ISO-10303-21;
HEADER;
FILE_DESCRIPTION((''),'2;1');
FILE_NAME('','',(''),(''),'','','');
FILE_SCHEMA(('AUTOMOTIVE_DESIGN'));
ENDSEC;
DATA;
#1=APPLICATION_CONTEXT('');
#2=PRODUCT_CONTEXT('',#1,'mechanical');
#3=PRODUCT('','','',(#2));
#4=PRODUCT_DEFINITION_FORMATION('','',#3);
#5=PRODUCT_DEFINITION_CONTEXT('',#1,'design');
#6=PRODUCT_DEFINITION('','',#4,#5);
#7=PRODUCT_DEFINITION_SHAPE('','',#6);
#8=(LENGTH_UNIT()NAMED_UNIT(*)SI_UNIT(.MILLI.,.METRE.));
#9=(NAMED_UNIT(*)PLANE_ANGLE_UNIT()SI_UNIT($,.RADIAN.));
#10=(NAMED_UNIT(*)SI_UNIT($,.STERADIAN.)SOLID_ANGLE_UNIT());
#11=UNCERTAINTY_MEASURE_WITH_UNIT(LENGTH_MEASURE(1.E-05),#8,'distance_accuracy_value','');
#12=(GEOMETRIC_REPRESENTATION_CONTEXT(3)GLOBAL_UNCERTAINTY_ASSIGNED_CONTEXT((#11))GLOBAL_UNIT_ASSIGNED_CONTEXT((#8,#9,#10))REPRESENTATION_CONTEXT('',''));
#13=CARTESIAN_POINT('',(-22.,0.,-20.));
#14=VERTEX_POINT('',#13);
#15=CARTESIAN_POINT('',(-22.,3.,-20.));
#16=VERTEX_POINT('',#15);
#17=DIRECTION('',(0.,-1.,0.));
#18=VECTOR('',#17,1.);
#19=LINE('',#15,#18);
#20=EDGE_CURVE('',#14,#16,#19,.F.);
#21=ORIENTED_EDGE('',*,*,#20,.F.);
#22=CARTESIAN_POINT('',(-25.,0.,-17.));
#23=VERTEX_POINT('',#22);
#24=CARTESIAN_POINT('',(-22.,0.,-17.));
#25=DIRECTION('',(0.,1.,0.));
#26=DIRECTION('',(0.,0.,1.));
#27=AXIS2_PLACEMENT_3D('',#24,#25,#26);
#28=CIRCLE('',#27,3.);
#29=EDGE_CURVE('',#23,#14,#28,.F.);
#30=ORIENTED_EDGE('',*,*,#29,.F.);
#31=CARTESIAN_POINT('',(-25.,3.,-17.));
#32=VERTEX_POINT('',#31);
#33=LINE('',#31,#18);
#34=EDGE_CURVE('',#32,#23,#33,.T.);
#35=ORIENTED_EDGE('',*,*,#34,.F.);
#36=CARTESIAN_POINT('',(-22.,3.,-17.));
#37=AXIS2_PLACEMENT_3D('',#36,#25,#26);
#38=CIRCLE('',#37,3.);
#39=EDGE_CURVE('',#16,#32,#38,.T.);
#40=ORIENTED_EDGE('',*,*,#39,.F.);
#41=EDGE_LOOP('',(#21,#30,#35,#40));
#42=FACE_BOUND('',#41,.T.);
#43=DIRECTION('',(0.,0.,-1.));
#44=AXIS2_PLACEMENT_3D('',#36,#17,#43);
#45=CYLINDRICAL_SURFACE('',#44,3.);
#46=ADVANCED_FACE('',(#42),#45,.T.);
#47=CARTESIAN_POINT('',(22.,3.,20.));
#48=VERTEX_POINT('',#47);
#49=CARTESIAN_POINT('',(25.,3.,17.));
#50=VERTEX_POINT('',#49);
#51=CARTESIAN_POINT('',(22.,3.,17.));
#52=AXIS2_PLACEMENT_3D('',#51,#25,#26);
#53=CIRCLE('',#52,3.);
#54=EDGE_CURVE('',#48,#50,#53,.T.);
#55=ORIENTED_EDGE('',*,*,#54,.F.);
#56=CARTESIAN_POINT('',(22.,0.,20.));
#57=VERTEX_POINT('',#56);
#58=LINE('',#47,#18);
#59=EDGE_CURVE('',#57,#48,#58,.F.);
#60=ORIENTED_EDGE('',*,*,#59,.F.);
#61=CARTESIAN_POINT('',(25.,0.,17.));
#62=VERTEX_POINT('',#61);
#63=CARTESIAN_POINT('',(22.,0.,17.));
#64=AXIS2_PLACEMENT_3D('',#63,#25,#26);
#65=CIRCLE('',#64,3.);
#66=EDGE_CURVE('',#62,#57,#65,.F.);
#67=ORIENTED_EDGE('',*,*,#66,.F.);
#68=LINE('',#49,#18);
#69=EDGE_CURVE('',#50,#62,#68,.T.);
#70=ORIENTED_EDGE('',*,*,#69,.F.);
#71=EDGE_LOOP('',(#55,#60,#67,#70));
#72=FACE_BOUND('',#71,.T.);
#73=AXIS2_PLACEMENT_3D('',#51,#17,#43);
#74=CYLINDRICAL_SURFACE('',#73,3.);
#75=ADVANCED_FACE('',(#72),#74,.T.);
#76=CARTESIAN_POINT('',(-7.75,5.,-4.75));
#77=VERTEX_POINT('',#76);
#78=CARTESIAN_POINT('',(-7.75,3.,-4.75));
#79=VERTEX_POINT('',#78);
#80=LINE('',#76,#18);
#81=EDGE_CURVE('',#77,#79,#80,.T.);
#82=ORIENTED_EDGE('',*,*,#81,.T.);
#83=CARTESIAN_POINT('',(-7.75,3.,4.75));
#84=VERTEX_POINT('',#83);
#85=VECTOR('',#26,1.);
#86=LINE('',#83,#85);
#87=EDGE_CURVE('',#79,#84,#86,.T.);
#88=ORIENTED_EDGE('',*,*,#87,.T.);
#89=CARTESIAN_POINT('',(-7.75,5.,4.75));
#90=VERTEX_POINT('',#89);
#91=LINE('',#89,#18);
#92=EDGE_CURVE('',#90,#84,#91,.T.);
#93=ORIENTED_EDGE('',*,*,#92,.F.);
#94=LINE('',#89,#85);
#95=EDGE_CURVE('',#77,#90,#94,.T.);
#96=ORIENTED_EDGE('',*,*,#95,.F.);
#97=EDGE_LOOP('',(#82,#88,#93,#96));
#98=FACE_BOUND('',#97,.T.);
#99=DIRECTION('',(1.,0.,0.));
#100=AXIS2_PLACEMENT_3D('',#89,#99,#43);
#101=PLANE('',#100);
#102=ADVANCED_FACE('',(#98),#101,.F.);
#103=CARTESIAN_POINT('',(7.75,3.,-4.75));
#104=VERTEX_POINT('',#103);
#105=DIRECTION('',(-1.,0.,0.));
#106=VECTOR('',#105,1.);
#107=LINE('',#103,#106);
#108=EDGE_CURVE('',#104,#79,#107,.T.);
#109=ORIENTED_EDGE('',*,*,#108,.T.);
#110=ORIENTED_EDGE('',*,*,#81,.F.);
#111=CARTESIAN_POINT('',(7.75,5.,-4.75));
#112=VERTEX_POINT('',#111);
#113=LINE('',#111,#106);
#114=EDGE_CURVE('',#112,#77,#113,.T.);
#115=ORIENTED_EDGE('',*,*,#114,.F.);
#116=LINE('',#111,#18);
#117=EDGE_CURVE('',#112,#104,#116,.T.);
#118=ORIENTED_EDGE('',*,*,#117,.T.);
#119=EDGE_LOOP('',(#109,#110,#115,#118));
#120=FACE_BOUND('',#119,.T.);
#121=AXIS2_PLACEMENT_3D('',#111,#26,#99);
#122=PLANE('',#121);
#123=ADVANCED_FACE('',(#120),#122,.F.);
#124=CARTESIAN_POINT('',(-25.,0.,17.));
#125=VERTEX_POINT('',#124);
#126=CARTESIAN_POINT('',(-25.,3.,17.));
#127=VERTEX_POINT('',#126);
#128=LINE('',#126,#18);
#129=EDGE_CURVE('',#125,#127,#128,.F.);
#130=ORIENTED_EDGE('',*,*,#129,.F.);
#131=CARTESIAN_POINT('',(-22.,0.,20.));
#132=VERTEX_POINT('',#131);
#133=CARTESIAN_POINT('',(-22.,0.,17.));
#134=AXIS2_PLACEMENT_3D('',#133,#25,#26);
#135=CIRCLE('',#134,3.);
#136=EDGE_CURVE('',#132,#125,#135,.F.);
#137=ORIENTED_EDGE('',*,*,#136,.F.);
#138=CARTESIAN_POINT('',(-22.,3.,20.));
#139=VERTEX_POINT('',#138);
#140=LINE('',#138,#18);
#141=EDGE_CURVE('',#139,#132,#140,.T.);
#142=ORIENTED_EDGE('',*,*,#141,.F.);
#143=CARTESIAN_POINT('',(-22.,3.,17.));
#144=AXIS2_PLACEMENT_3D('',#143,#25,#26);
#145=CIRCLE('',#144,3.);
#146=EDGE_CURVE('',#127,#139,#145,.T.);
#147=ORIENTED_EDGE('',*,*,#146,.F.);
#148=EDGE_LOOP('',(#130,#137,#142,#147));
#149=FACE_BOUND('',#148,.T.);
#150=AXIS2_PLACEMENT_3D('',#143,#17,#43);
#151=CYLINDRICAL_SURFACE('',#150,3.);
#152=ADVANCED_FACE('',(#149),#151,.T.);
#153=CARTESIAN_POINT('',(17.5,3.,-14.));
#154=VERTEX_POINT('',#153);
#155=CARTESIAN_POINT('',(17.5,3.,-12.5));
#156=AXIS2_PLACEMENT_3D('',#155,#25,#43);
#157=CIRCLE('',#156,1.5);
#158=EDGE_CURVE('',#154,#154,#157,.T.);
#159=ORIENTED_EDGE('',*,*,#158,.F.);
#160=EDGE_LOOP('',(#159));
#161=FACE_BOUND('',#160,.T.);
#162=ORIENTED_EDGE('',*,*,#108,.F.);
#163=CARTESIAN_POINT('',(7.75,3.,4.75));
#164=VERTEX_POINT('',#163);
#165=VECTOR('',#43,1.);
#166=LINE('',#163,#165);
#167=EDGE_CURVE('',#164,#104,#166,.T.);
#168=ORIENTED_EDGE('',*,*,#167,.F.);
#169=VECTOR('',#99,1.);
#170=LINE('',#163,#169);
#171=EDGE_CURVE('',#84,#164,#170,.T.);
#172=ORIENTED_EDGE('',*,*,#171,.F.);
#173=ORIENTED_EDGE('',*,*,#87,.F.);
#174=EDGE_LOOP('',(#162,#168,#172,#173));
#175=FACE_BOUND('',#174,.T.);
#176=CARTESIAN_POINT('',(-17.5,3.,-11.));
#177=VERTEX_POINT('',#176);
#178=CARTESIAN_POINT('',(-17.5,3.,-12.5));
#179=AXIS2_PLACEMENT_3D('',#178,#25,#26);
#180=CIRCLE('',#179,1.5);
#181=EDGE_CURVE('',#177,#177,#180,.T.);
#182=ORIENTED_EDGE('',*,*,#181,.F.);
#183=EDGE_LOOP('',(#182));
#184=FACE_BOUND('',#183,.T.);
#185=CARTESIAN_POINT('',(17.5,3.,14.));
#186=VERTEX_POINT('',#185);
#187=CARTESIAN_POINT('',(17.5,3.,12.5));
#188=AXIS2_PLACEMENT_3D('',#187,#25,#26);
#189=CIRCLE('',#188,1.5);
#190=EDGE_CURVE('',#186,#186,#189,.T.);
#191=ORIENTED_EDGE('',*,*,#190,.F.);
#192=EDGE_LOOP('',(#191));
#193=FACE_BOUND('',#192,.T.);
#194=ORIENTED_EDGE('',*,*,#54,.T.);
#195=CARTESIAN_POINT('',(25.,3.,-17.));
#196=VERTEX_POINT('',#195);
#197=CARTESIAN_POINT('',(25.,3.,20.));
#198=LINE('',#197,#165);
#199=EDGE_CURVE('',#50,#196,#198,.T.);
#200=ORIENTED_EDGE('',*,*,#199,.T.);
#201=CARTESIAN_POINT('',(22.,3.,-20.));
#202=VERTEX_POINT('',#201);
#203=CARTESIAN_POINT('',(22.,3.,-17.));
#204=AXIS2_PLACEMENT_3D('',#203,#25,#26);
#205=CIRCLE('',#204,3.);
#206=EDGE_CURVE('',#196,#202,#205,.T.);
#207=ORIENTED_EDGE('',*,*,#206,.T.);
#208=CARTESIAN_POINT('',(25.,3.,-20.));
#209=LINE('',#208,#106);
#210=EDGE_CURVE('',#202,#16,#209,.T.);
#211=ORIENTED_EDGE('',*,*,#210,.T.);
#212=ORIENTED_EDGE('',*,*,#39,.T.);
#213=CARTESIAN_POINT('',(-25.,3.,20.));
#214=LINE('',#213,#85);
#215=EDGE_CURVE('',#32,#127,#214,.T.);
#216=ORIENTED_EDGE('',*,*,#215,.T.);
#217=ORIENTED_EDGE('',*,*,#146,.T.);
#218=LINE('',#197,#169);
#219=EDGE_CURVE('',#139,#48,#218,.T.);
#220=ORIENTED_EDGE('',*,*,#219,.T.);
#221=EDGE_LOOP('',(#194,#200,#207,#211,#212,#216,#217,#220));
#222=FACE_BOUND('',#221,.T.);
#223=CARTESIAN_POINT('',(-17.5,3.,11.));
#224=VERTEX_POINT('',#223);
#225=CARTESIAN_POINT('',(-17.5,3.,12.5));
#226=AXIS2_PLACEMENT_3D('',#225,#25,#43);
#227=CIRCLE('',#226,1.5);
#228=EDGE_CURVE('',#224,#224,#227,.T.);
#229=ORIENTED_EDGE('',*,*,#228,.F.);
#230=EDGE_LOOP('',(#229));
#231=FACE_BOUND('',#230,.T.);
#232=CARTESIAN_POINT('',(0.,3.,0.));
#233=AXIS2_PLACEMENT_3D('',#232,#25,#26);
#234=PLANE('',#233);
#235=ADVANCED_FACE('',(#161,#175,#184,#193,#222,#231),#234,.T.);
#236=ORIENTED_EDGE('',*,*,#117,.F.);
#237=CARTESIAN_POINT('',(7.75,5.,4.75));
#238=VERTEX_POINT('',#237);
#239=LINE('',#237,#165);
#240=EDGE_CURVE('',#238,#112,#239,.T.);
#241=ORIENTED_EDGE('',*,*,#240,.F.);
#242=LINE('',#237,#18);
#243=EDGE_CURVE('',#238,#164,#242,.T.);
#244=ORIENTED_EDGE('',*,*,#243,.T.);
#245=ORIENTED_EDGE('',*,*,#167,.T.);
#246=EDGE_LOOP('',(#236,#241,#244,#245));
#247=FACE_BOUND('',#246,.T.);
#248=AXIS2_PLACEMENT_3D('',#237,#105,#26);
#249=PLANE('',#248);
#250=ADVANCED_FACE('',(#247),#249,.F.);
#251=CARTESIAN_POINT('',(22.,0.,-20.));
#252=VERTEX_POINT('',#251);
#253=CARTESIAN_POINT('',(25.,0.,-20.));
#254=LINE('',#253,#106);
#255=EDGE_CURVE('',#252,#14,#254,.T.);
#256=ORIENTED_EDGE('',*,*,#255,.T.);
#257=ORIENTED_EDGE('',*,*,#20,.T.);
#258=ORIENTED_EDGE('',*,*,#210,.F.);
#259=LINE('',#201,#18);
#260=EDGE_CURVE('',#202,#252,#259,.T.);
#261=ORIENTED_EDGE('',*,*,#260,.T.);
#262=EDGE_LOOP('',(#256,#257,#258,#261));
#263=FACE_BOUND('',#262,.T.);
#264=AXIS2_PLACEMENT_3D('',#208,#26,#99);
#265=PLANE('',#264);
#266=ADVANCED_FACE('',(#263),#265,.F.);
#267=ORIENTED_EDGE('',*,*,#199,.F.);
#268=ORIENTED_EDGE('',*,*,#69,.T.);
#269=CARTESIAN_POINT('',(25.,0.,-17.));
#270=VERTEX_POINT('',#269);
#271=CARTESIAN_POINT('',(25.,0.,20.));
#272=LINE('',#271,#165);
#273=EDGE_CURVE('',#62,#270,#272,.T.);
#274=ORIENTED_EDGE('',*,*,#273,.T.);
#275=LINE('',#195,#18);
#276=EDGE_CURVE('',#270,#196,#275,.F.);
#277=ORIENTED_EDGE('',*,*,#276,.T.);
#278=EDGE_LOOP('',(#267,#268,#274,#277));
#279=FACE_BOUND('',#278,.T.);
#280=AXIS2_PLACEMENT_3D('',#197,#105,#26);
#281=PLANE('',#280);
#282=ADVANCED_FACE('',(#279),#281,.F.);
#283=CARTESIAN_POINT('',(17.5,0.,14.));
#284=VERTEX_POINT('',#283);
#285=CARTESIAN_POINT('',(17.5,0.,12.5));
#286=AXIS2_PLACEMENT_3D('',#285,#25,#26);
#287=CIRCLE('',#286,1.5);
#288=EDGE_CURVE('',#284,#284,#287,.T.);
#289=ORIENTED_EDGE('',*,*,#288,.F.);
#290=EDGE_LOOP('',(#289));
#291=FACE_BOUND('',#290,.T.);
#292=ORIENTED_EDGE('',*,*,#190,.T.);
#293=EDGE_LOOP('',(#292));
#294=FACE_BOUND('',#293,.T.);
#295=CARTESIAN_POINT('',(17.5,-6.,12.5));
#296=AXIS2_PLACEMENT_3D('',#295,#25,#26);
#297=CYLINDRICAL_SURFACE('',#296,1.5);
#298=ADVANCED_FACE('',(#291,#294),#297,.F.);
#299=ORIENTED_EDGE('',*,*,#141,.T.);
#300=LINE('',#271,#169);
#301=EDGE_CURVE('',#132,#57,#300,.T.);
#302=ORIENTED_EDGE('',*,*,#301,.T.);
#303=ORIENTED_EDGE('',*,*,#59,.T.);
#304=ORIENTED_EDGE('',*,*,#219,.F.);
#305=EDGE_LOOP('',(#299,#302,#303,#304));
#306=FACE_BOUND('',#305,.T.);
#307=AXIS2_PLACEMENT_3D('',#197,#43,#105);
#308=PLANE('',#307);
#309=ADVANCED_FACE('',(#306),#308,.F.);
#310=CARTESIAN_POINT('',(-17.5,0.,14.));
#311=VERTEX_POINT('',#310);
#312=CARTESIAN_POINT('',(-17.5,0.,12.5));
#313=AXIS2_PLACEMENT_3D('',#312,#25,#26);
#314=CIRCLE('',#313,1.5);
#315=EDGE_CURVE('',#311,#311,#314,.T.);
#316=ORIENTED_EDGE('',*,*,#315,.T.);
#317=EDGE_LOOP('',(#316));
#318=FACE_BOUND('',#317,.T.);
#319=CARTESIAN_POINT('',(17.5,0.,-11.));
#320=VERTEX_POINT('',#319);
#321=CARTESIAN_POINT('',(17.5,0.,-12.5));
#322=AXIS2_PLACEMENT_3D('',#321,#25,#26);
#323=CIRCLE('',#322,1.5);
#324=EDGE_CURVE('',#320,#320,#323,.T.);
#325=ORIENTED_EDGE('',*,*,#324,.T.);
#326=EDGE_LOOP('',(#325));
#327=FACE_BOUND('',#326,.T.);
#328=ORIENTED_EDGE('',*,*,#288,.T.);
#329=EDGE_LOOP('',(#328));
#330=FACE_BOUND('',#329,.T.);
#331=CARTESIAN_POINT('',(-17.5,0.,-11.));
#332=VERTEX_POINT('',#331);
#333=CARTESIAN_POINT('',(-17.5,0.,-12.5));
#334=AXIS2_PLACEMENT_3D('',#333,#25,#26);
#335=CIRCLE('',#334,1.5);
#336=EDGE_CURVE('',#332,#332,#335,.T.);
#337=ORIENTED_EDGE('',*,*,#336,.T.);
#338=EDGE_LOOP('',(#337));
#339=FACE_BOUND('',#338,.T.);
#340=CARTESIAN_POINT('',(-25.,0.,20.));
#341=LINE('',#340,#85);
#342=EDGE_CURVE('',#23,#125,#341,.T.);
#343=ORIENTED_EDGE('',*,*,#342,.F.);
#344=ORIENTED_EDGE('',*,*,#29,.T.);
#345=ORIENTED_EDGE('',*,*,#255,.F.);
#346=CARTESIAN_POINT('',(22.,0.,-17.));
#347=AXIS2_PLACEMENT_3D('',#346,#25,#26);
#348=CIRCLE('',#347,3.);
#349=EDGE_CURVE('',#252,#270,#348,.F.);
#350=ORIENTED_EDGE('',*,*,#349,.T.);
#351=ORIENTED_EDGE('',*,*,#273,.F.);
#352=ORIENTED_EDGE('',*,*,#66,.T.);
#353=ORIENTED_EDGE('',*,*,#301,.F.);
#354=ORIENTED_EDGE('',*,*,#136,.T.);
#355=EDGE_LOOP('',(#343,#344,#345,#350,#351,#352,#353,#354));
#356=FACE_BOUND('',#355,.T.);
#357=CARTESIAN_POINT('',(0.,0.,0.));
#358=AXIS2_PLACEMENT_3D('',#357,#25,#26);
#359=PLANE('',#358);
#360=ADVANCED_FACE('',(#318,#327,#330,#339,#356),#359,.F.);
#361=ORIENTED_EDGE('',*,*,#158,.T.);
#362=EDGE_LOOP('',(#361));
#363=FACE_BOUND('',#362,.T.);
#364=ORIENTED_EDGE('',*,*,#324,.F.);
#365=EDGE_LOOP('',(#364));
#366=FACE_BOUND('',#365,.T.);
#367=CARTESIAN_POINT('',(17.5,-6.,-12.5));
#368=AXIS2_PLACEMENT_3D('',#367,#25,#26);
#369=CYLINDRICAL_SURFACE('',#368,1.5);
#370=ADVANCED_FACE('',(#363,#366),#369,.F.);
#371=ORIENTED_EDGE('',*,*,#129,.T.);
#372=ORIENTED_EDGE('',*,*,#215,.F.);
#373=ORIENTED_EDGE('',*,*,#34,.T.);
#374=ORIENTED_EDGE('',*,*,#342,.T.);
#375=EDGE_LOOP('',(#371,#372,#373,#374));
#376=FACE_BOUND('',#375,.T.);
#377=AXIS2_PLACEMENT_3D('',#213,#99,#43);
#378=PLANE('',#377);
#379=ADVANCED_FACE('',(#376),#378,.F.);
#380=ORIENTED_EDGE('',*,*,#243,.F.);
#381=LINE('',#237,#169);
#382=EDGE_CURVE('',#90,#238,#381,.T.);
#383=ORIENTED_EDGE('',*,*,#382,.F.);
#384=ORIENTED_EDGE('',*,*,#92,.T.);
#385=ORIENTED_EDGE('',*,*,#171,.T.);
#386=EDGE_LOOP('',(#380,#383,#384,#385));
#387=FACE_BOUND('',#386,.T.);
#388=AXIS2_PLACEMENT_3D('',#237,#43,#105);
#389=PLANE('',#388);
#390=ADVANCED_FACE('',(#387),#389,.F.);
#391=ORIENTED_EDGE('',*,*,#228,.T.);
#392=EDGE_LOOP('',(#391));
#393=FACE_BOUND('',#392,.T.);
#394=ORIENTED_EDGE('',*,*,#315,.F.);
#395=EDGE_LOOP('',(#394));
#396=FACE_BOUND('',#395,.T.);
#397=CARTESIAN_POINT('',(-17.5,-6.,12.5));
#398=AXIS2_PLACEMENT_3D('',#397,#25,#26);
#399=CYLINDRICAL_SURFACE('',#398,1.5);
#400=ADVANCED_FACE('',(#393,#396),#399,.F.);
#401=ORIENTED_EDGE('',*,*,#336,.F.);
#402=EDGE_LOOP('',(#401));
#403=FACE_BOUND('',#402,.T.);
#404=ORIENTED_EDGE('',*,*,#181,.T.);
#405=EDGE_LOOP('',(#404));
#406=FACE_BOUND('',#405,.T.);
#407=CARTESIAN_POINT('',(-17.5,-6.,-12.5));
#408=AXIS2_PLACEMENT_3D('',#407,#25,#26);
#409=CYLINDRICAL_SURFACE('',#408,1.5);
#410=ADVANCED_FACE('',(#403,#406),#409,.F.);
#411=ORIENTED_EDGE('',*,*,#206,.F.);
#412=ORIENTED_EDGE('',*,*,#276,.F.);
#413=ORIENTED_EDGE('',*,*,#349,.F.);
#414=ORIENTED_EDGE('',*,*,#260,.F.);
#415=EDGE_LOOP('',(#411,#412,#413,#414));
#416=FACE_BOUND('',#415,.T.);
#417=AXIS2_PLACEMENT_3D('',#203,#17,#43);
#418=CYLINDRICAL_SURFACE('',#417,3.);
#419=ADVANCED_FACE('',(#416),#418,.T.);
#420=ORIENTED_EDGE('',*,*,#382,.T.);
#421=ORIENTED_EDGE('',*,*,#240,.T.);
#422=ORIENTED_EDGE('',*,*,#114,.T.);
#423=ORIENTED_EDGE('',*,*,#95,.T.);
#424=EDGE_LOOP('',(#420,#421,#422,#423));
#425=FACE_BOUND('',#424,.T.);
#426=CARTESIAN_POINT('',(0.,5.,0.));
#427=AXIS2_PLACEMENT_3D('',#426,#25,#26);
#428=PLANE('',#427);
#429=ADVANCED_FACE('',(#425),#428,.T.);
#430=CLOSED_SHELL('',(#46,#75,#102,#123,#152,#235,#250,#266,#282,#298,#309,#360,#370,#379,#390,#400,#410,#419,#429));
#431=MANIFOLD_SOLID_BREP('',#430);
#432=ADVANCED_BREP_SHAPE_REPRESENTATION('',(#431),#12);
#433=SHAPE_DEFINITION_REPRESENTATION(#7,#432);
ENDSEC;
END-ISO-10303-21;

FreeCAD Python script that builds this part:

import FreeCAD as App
import Part
import Sketcher
Q = App.Units.Quantity


def edges_at(feature, points):
    """Names of the edges that pass closest to the given points."""
    edges = feature.Shape.Edges
    near = lambda p: min(range(len(edges)), key=lambda i: edges[i].distToShape(Part.Vertex(*p))[0])
    return sorted({f"Edge{near(p) + 1}" for p in points})


def add_polygon(sketch, points):
    """Adds a closed chain of lines whose ends are joined by coincident constraints."""
    first, n = sketch.GeometryCount, len(points)
    for a, b in zip(points, points[1:] + points[:1]):
        sketch.addGeometry(Part.LineSegment(App.Vector(*a, 0), App.Vector(*b, 0)), False)
    for i in range(n):
        sketch.addConstraint(Sketcher.Constraint("Coincident", first + i, 2, first + (i + 1) % n, 1))

doc = App.newDocument("Part")
body = doc.addObject("PartDesign::Body", "Body")

# Sketch on XZ plane
sketch1 = body.newObject("Sketcher::SketchObject", "Sketch")
sketch1.AttachmentSupport = (doc.getObject("XZ_Plane"), [""])
sketch1.MapMode = "FlatFace"
add_polygon(sketch1, [(-25, -20), (-25, 20), (25, 20), (25, -20)])  # lines 0-3
sketch1.addConstraint([
    Sketcher.Constraint("Vertical", 0),
    Sketcher.Constraint("Horizontal", 1),
    Sketcher.Constraint("Vertical", 2),
    Sketcher.Constraint("Horizontal", 3),
    Sketcher.Constraint("Symmetric", 0, 2, 2, 2, -1, 1),
    Sketcher.Constraint("DistanceX", 1, 1, 1, 2, Q("50 mm")),
    Sketcher.Constraint("DistanceY", 0, 1, 0, 2, Q("40 mm")),
])
pad1 = body.newObject("PartDesign::Pad", "Pad")
pad1.Profile = sketch1
pad1.Length = 3
pad1.Reversed = True
doc.recompute()

fillet = body.newObject("PartDesign::Fillet", "Fillet")
fillet.Base = (pad1, edges_at(pad1, [
    (-25, 1.5, -20),
    (25, 1.5, -20),
    (25, 1.5, 20),
    (-25, 1.5, 20),
]))
fillet.Radius = 3

# Sketch on XZ plane
sketch2 = body.newObject("Sketcher::SketchObject", "Sketch001")
sketch2.AttachmentSupport = (doc.getObject("XZ_Plane"), [""])
sketch2.MapMode = "FlatFace"
sketch2.AttachmentOffset = App.Placement(App.Vector(0, 0, -3), App.Rotation())
sketch2.addGeometry([
    Part.Circle(App.Vector(-17.5, -12.5, 0), App.Vector(0, 0, 1), 1.5),
    Part.Circle(App.Vector(17.5, -12.5, 0), App.Vector(0, 0, 1), 1.5),
    Part.Circle(App.Vector(17.5, 12.5, 0), App.Vector(0, 0, 1), 1.5),
    Part.Circle(App.Vector(-17.5, 12.5, 0), App.Vector(0, 0, 1), 1.5),
], False)
sketch2.addConstraint([
    Sketcher.Constraint("Equal", 0, 1),
    Sketcher.Constraint("Equal", 1, 2),
    Sketcher.Constraint("Equal", 2, 3),
    Sketcher.Constraint("Symmetric", 0, 3, 2, 3, -1, 1),
    Sketcher.Constraint("Symmetric", 1, 3, 3, 3, -1, 1),
    Sketcher.Constraint("Symmetric", 0, 3, 1, 3, -2),
    Sketcher.Constraint("Diameter", 0, Q("3 mm")),
    Sketcher.Constraint("DistanceX", 0, 3, 1, 3, Q("35 mm")),
    Sketcher.Constraint("DistanceY", 1, 3, 2, 3, Q("25 mm")),
])
pocket1 = body.newObject("PartDesign::Pocket", "Pocket")
pocket1.Profile = sketch2
pocket1.Length = 9
pocket1.Reversed = True

# Sketch on XZ plane
sketch3 = body.newObject("Sketcher::SketchObject", "Sketch002")
sketch3.AttachmentSupport = (doc.getObject("XZ_Plane"), [""])
sketch3.MapMode = "FlatFace"
sketch3.AttachmentOffset = App.Placement(App.Vector(0, 0, -3), App.Rotation())
add_polygon(sketch3, [(-8, -5), (-8, 5), (8, 5), (8, -5)])  # lines 0-3
sketch3.addConstraint([
    Sketcher.Constraint("Vertical", 0),
    Sketcher.Constraint("Horizontal", 1),
    Sketcher.Constraint("Vertical", 2),
    Sketcher.Constraint("Horizontal", 3),
    Sketcher.Constraint("Symmetric", 0, 2, 2, 2, -1, 1),
    Sketcher.Constraint("DistanceX", 1, 1, 1, 2, Q("15.5 mm")),
    Sketcher.Constraint("DistanceY", 0, 1, 0, 2, Q("9.5 mm")),
])
pad2 = body.newObject("PartDesign::Pad", "Pad001")
pad2.Profile = sketch3
pad2.Length = 2
pad2.Reversed = True

doc.recompute()
